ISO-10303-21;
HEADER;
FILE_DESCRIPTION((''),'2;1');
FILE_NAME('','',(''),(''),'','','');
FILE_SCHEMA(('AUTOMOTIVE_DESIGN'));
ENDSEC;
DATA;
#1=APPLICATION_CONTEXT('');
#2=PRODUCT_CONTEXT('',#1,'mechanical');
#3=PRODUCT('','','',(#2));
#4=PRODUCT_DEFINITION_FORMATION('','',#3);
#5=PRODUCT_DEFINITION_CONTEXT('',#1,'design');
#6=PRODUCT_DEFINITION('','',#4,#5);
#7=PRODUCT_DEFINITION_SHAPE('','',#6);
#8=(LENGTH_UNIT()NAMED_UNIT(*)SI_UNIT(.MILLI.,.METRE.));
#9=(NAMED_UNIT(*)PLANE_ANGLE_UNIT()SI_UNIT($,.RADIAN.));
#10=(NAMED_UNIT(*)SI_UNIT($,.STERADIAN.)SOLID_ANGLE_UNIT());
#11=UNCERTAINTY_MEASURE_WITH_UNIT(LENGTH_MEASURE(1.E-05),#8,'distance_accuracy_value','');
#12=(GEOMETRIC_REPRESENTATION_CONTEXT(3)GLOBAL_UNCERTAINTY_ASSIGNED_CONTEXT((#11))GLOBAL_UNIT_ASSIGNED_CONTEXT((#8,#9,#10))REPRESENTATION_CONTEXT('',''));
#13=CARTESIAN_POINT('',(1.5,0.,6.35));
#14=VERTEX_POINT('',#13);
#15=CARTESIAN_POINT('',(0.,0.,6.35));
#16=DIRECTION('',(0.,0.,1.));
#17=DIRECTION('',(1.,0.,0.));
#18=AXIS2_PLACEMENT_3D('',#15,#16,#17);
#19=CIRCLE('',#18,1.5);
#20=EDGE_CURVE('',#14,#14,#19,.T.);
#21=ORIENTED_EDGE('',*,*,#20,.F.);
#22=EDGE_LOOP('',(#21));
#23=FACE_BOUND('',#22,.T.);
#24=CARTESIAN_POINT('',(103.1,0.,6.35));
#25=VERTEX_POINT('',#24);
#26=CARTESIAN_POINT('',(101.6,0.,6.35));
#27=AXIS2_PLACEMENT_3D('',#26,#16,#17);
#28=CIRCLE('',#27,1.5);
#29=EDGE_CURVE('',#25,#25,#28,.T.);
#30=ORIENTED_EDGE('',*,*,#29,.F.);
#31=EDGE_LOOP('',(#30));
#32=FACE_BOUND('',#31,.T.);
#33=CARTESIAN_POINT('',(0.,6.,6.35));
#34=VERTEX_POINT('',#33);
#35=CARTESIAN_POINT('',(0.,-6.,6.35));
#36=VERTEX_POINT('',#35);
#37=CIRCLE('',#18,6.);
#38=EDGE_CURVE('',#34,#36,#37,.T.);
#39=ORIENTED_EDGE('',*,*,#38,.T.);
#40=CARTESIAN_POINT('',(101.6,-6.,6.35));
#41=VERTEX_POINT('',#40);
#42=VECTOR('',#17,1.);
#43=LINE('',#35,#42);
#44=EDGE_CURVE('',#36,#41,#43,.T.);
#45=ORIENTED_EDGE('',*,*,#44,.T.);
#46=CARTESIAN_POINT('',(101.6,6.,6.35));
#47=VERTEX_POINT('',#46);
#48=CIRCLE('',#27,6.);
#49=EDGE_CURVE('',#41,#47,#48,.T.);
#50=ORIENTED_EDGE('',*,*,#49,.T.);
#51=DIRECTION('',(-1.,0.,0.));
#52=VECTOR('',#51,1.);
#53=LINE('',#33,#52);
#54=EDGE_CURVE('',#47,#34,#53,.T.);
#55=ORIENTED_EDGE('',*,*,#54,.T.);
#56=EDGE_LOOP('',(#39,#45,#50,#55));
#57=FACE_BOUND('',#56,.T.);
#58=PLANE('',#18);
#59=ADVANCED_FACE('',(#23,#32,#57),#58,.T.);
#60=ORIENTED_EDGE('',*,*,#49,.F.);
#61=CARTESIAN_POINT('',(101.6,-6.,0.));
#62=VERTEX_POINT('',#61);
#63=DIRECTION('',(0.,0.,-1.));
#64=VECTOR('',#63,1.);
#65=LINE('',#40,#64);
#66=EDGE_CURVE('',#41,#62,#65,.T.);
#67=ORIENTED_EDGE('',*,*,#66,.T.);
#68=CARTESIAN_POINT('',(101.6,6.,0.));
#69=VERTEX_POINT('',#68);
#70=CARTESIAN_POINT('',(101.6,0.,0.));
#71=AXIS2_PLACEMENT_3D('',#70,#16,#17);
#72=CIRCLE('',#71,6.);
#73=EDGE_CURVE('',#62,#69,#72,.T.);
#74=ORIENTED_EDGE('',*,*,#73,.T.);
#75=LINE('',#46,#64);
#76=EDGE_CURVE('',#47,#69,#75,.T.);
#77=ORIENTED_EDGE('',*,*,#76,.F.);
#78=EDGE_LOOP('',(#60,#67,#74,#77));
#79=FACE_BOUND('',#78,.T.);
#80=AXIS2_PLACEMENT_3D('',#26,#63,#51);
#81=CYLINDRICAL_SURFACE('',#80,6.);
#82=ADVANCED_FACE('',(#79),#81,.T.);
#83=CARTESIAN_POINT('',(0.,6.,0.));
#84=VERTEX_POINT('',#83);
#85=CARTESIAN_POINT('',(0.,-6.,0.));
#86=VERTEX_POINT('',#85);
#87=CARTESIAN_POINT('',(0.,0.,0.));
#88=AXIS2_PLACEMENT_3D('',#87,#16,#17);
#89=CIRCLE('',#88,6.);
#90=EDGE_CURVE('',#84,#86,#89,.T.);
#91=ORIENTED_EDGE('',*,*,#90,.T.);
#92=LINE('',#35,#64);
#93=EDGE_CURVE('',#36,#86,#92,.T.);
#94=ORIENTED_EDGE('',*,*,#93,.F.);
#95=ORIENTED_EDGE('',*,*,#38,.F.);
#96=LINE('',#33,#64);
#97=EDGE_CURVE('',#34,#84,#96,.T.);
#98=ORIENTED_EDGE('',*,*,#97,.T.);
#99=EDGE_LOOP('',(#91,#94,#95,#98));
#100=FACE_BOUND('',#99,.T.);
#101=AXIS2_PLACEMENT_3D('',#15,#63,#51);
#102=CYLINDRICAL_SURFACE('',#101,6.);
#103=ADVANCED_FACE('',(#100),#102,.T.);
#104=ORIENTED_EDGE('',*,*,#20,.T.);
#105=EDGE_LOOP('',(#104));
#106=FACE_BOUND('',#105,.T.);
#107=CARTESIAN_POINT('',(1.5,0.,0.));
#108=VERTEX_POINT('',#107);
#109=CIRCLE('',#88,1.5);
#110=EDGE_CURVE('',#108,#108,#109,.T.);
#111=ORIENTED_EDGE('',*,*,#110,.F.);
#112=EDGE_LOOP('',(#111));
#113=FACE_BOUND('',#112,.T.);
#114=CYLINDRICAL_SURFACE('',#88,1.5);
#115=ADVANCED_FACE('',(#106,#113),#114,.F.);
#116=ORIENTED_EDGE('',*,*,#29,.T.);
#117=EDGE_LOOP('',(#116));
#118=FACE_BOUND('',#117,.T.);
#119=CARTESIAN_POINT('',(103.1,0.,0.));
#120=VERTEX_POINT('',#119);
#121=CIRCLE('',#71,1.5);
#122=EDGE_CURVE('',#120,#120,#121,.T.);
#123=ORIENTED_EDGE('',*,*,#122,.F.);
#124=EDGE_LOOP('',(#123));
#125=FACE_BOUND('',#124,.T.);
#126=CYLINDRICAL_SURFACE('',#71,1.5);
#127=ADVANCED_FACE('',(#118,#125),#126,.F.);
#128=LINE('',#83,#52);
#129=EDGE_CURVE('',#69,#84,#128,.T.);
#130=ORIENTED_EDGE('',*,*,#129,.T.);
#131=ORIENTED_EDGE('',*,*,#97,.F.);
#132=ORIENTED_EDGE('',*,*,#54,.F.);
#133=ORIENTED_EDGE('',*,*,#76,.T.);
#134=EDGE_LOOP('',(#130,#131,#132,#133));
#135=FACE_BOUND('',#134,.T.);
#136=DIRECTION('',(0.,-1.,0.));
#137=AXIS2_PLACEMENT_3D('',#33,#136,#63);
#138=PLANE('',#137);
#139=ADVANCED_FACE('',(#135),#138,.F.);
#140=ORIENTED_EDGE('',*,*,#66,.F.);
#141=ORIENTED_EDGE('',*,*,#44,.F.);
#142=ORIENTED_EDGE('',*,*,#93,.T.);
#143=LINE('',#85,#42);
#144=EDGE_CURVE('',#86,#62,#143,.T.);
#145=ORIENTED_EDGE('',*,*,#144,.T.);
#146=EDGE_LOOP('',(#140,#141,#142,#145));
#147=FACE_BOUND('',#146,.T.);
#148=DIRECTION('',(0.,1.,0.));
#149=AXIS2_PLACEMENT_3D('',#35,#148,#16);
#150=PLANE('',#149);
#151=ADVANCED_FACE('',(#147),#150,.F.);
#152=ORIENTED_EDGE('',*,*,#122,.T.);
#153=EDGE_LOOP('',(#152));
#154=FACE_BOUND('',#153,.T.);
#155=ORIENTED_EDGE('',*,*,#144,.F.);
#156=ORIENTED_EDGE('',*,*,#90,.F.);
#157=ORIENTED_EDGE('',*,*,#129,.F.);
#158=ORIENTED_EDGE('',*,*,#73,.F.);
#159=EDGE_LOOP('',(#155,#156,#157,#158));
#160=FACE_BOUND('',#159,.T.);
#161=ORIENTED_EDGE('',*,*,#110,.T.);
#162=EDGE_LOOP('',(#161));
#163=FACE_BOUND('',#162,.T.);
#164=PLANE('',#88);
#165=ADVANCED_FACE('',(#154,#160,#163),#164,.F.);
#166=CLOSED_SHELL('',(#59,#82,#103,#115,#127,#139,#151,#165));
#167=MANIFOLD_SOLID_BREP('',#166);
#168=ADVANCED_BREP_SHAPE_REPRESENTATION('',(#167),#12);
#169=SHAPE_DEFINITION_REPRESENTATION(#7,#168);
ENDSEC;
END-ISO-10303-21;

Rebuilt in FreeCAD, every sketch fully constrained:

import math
import FreeCAD as App
import Part
import Sketcher

V = App.Vector
Q = App.Units.Quantity

doc = App.newDocument("Part")
params = doc.addObject("Spreadsheet::Sheet", "Params")
for row, (alias, value) in enumerate([
    ("sketch1_radius", "6 mm"),
    ("sketch1_width", "101.6 mm"),
    ("pad1_length", "6.35 mm"),
    ("sketch2_diameter", "3 mm"),
    ("pocket1_length", "6.35 mm"),
    ("sketch3_diameter", "3 mm"),
    ("pocket2_length", "6.35 mm"),
], start=1):
    params.set(f"A{row}", alias)
    params.set(f"B{row}", "=" + value)
    params.setAlias(f"B{row}", alias)

body = doc.addObject("PartDesign::Body", "Body")

# Sketch on XY plane
sketch1 = body.newObject("Sketcher::SketchObject", "Sketch")
sketch1.AttachmentSupport = (doc.getObject("XY_Plane"), [""])
sketch1.MapMode = "FlatFace"
sketch1.addGeometry(Part.LineSegment(V(102, 6, 0), V(0, 6, 0)), False)
sketch1.addGeometry(Part.ArcOfCircle(Part.Circle(V(0, 0, 0), V(0, 0, 1), 6), math.radians(90), math.radians(270)), False)
sketch1.addGeometry(Part.LineSegment(V(0, -6, 0), V(102, -6, 0)), False)
sketch1.addGeometry(Part.ArcOfCircle(Part.Circle(V(102, 0, 0), V(0, 0, 1), 6), math.radians(-90), math.radians(90)), False)
sketch1.addConstraint(Sketcher.Constraint("Tangent", 0, 2, 1, 1))
sketch1.addConstraint(Sketcher.Constraint("Tangent", 1, 2, 2, 1))
sketch1.addConstraint(Sketcher.Constraint("Tangent", 2, 2, 3, 1))
sketch1.addConstraint(Sketcher.Constraint("Tangent", 3, 2, 0, 1))
sketch1.addConstraint(Sketcher.Constraint("Horizontal", 0))
sketch1.addConstraint(Sketcher.Constraint("Horizontal", 2))
sketch1.addConstraint(Sketcher.Constraint("Coincident", 1, 3, -1, 1))
sketch1.addConstraint(Sketcher.Constraint("Radius", 1, Q("6 mm")))
sketch1.addConstraint(Sketcher.Constraint("DistanceX", 0, 2, 0, 1, Q("101.6 mm")))
sketch1.setExpression("Constraints[7]", "Params.sketch1_radius")
sketch1.setExpression("Constraints[8]", "Params.sketch1_width")
pad1 = body.newObject("PartDesign::Pad", "Pad")
pad1.Profile = sketch1
pad1.setExpression("Length", "Params.pad1_length")

# Sketch on XY plane
sketch2 = body.newObject("Sketcher::SketchObject", "Sketch001")
sketch2.AttachmentSupport = (doc.getObject("XY_Plane"), [""])
sketch2.MapMode = "FlatFace"
sketch2.AttachmentOffset = App.Placement(V(0, 0, 6.35), App.Rotation())
sketch2.addGeometry(Part.Circle(V(0, 0, 0), V(0, 0, 1), 1.5), False)
sketch2.addConstraint(Sketcher.Constraint("Coincident", 0, 3, -1, 1))
sketch2.addConstraint(Sketcher.Constraint("Diameter", 0, Q("3 mm")))
sketch2.setExpression("Constraints[1]", "Params.sketch2_diameter")
pocket1 = body.newObject("PartDesign::Pocket", "Pocket")
pocket1.Profile = sketch2
pocket1.setExpression("Length", "Params.pocket1_length")

# Sketch on XY plane
sketch3 = body.newObject("Sketcher::SketchObject", "Sketch002")
sketch3.AttachmentSupport = (doc.getObject("XY_Plane"), [""])
sketch3.MapMode = "FlatFace"
sketch3.AttachmentOffset = App.Placement(V(0, 0, 6.35), App.Rotation())
sketch3.addGeometry(Part.Circle(V(101.6, 0, 0), V(0, 0, 1), 1.5), False)
sketch3.addConstraint(Sketcher.Constraint("PointOnObject", 0, 3, -1))
sketch3.addConstraint(Sketcher.Constraint("Diameter", 0, Q("3 mm")))
sketch3.addConstraint(Sketcher.Constraint("DistanceX", -1, 1, 0, 3, Q("101.6 mm")))
sketch3.setExpression("Constraints[1]", "Params.sketch3_diameter")
pocket2 = body.newObject("PartDesign::Pocket", "Pocket001")
pocket2.Profile = sketch3
pocket2.setExpression("Length", "Params.pocket2_length")

doc.recompute()
